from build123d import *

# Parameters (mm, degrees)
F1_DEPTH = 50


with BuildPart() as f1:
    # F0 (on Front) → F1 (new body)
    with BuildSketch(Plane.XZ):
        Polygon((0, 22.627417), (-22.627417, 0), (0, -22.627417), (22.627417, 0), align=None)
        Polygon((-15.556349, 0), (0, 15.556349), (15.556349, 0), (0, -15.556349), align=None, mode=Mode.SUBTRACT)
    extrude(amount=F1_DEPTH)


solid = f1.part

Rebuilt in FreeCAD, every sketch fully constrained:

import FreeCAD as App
import Part
import Sketcher

V = App.Vector

doc = App.newDocument("Part")
body = doc.addObject("PartDesign::Body", "Body")

# Sketch on XZ plane
sketch1 = body.newObject("Sketcher::SketchObject", "Sketch")
sketch1.AttachmentSupport = (doc.getObject("XZ_Plane"), [""])
sketch1.MapMode = "FlatFace"
sketch1.addGeometry([
    Part.LineSegment(V(0, 23, 0), V(-23, 0, 0)),  # 0
    Part.LineSegment(V(-23, 0, 0), V(0, -23, 0)),  # 1
    Part.LineSegment(V(0, -23, 0), V(23, 0, 0)),  # 2
    Part.LineSegment(V(23, 0, 0), V(0, 23, 0)),  # 3
    Part.LineSegment(V(0, -16, 0), V(-16, 0, 0)),  # 4
    Part.LineSegment(V(-16, 0, 0), V(0, 16, 0)),  # 5
    Part.LineSegment(V(0, 16, 0), V(16, 0, 0)),  # 6
    Part.LineSegment(V(16, 0, 0), V(0, -16, 0)),  # 7
], False)
sketch1.addConstraint([
    Sketcher.Constraint("Coincident", 0, 2, 1, 1),
    Sketcher.Constraint("Coincident", 1, 2, 2, 1),
    Sketcher.Constraint("Coincident", 2, 2, 3, 1),
    Sketcher.Constraint("Coincident", 3, 2, 0, 1),
    Sketcher.Constraint("Coincident", 4, 2, 5, 1),
    Sketcher.Constraint("Coincident", 5, 2, 6, 1),
    Sketcher.Constraint("Coincident", 6, 2, 7, 1),
    Sketcher.Constraint("Coincident", 7, 2, 4, 1),
    Sketcher.Constraint("Symmetric", 0, 2, 2, 2, -1, 1),
    Sketcher.Constraint("Symmetric", 1, 2, 3, 2, -1, 1),
    Sketcher.Constraint("Symmetric", 4, 2, 6, 2, -1, 1),
    Sketcher.Constraint("Symmetric", 5, 2, 7, 2, -1, 1),
    Sketcher.Constraint("PointOnObject", 0, 2, -1),
    Sketcher.Constraint("PointOnObject", 1, 2, -2),
    Sketcher.Constraint("PointOnObject", 4, 2, -1),
    Sketcher.Constraint("PointOnObject", 5, 2, -2),
    Sketcher.Constraint("Perpendicular", 0, 1),
    Sketcher.Constraint("Parallel", 3, 4),
    Sketcher.Constraint("Distance", 0, 32.0),
    Sketcher.Constraint("Distance", 4, 22.0),
])
pad1 = body.newObject("PartDesign::Pad", "Pad")
pad1.Profile = sketch1
pad1.Length = 50

doc.recompute()
